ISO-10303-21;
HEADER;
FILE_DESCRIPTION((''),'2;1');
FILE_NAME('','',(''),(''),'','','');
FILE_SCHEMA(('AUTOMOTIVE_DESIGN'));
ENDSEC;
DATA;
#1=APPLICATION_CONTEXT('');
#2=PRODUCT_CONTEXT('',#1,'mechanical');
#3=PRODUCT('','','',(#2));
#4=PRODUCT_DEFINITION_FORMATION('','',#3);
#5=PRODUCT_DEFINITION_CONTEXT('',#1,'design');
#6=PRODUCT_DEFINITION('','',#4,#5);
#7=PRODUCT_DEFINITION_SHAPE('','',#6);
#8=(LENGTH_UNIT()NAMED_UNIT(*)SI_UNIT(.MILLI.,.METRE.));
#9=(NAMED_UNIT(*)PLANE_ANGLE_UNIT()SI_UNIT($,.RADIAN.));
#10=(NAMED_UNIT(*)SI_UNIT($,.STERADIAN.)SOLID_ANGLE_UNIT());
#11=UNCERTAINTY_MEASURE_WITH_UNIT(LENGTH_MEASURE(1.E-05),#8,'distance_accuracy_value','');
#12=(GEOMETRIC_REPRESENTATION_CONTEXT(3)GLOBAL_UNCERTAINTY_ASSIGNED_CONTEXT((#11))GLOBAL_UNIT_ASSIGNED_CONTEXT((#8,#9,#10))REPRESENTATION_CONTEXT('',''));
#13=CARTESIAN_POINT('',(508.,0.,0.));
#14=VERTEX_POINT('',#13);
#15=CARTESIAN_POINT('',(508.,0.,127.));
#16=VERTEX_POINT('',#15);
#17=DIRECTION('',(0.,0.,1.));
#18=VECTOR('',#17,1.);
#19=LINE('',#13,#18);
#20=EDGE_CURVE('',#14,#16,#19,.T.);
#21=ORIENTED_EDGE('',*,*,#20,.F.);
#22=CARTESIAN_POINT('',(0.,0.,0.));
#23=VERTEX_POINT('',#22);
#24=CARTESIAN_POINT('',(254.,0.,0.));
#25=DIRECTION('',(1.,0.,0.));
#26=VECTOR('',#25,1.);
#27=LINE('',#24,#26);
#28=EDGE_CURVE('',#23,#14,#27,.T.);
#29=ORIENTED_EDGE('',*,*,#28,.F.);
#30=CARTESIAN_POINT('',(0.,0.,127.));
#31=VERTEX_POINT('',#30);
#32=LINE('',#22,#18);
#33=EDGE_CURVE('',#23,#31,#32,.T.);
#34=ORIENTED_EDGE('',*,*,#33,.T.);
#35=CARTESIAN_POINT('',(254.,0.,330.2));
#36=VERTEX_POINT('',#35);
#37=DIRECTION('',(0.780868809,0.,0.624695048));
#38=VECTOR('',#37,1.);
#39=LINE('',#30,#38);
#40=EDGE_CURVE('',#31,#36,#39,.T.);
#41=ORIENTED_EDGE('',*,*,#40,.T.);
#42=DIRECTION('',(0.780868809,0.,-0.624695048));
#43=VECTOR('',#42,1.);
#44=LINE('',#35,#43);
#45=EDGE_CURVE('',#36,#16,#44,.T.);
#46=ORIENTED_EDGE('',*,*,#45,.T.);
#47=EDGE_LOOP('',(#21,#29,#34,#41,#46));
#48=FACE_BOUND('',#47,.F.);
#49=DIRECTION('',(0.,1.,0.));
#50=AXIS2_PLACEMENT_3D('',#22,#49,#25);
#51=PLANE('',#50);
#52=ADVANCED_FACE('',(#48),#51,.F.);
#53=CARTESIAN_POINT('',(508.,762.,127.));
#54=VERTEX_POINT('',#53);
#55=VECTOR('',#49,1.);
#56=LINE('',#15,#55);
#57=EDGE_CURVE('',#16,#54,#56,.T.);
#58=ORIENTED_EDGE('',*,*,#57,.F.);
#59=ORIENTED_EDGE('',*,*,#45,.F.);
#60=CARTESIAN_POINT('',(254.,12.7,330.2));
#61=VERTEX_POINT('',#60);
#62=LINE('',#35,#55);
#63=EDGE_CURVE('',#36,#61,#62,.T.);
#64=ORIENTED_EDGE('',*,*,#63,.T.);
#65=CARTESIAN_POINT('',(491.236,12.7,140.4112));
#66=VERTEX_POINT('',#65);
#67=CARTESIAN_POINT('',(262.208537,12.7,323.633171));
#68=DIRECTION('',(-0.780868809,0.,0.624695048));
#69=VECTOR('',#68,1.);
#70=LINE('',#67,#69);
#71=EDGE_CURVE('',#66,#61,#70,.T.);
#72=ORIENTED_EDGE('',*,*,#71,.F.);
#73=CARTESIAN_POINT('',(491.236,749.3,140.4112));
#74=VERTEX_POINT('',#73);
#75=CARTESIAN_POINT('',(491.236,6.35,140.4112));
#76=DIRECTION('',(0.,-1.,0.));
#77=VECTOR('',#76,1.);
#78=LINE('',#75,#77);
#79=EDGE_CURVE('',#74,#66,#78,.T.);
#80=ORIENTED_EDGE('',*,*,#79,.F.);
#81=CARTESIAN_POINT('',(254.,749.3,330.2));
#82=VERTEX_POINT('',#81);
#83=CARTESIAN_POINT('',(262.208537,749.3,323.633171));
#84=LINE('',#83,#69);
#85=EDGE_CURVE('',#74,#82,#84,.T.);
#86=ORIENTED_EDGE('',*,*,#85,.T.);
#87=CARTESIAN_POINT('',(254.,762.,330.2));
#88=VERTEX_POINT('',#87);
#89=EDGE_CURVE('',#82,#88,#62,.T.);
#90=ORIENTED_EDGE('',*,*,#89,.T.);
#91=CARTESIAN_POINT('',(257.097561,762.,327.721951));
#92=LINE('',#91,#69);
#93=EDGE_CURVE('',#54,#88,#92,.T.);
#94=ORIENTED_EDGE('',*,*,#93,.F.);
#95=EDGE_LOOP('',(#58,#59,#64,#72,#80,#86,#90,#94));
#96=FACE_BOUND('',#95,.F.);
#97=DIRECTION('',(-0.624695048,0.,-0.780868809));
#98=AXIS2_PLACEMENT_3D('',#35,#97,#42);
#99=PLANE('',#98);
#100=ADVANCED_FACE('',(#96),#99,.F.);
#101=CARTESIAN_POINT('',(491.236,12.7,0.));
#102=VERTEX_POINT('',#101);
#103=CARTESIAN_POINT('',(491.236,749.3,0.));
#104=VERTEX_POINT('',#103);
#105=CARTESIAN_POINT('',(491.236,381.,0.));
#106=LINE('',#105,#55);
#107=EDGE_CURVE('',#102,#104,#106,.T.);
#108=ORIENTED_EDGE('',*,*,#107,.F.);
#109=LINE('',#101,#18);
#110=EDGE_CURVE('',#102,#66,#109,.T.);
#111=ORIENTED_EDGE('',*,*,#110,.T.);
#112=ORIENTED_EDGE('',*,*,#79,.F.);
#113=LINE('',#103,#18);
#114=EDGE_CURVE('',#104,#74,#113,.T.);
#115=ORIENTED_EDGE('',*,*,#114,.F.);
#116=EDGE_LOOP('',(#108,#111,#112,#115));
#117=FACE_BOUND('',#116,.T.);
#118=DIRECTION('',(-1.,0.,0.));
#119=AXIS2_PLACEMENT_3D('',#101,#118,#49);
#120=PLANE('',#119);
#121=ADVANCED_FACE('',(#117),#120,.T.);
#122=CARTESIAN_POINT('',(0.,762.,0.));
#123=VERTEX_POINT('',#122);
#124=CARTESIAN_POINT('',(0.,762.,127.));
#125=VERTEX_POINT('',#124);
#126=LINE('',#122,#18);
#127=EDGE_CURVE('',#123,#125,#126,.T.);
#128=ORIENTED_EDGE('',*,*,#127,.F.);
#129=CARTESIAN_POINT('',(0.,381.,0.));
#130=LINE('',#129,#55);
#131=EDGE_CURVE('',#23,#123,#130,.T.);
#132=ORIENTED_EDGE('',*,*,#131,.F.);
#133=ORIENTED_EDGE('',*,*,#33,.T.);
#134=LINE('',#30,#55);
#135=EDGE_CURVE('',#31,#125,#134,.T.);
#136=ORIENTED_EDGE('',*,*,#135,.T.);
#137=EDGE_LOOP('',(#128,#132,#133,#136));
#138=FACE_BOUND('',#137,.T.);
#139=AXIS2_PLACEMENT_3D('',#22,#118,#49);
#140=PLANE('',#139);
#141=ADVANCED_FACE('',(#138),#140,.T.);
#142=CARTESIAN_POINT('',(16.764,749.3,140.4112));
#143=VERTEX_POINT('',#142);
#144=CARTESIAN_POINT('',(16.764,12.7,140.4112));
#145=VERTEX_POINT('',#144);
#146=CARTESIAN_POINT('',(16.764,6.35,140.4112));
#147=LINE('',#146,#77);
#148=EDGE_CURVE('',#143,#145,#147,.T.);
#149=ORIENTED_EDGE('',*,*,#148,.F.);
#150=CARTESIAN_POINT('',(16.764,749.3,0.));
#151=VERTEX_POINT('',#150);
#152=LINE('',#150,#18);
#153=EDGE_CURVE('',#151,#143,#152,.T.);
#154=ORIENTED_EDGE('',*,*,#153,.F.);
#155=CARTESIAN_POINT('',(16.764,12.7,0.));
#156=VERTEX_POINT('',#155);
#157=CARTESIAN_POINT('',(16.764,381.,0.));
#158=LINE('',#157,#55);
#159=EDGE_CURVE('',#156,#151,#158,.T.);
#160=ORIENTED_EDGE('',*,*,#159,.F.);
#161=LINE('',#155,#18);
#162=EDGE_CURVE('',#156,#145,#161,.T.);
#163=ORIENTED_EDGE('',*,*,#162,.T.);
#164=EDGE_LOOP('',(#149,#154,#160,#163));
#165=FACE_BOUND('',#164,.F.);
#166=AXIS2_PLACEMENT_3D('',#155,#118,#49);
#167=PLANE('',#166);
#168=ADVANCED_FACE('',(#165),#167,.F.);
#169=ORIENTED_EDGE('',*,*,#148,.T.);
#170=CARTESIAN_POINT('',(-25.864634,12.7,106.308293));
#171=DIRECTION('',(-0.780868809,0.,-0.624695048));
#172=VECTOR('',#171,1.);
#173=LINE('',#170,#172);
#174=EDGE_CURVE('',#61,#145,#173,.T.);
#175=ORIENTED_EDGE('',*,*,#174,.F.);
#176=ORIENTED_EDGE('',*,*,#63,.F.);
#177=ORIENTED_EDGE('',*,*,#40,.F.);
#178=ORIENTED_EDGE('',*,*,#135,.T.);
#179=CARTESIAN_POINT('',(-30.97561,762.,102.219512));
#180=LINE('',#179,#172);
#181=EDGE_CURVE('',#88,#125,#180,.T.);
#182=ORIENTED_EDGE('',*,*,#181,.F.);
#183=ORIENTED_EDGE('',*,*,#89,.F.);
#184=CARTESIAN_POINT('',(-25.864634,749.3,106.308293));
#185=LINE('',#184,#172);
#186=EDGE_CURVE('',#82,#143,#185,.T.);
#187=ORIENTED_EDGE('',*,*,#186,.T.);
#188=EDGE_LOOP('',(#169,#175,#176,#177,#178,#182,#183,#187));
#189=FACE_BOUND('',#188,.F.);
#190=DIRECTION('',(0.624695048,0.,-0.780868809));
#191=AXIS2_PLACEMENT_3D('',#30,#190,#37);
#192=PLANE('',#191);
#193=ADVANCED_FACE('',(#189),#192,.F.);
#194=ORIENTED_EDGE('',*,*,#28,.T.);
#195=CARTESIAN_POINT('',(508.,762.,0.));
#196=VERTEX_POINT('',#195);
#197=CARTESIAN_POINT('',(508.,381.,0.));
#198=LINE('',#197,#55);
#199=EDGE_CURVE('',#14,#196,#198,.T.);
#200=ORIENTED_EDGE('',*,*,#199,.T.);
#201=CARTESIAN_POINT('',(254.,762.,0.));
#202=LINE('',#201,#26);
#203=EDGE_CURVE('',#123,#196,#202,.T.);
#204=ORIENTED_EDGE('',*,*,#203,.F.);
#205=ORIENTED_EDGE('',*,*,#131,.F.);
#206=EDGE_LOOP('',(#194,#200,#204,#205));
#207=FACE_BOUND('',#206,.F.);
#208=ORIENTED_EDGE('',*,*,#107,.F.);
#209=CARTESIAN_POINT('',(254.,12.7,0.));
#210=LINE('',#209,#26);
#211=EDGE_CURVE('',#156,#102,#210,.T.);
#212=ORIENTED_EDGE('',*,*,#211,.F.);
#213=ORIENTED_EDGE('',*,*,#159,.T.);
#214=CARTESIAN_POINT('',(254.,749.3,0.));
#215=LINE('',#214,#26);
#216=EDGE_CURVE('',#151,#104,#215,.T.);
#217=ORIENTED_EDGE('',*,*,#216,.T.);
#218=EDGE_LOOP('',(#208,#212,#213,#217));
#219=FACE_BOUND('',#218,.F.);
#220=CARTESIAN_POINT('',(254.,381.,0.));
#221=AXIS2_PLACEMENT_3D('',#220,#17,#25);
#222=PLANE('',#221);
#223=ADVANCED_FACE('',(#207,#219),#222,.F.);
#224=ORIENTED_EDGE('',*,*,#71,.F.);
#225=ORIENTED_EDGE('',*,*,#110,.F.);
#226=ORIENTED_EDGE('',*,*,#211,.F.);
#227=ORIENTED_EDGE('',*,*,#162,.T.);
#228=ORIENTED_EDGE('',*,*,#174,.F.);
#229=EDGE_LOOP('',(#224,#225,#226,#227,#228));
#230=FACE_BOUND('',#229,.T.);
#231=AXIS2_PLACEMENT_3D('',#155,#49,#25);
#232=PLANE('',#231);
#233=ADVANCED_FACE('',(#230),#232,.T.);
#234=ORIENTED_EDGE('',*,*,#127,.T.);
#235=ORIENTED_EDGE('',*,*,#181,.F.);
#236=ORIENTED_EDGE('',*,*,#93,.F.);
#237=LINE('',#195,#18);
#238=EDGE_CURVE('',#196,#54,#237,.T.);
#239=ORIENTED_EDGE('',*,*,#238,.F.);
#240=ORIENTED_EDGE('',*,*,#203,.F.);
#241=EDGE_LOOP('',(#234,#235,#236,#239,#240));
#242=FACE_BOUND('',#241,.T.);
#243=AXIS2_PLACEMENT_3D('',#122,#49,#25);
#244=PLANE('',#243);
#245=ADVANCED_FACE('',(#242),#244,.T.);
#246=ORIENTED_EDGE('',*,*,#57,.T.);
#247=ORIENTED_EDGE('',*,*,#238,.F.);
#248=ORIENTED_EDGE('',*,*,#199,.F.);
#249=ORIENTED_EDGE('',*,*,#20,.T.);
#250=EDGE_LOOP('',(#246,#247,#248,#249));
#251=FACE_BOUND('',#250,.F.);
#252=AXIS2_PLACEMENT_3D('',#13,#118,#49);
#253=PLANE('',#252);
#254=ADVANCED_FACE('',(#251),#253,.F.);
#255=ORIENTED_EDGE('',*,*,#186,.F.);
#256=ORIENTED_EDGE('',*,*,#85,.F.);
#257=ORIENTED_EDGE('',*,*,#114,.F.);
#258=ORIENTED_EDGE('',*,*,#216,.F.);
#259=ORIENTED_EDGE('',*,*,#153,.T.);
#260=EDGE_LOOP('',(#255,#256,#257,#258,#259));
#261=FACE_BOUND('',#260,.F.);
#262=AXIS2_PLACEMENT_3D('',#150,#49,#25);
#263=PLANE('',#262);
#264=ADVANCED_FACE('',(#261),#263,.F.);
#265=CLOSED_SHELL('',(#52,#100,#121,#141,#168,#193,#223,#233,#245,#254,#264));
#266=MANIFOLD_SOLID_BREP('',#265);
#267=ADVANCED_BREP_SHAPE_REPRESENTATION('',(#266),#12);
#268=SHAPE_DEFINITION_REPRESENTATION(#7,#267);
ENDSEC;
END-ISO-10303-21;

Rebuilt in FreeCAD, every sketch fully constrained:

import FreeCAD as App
import Part
import Sketcher
from FreeCAD import Vector
Q = App.Units.Quantity

doc = App.newDocument("Part")
body = doc.addObject("PartDesign::Body", "Body")

sketch1 = body.newObject("Sketcher::SketchObject", "Sketch")
sketch1.AttachmentSupport = (doc.getObject("XY_Plane"), [""])
sketch1.MapMode = "FlatFace"
sketch1.addGeometry([
    Part.LineSegment(Vector(0, 762, 0), Vector(0, 0, 0)),
    Part.LineSegment(Vector(0, 0, 0), Vector(508, 0, 0)),
    Part.LineSegment(Vector(508, 0, 0), Vector(508, 762, 0)),
    Part.LineSegment(Vector(508, 762, 0), Vector(0, 762, 0)),
    Part.LineSegment(Vector(491, 13, 0), Vector(17, 13, 0)),
    Part.LineSegment(Vector(17, 13, 0), Vector(17, 749, 0)),
    Part.LineSegment(Vector(17, 749, 0), Vector(491, 749, 0)),
    Part.LineSegment(Vector(491, 749, 0), Vector(491, 13, 0)),
], False)
sketch1.addConstraint([
    Sketcher.Constraint("Coincident", 0, 2, 1, 1),
    Sketcher.Constraint("Coincident", 1, 2, 2, 1),
    Sketcher.Constraint("Coincident", 2, 2, 3, 1),
    Sketcher.Constraint("Coincident", 3, 2, 0, 1),
    Sketcher.Constraint("Coincident", 4, 2, 5, 1),
    Sketcher.Constraint("Coincident", 5, 2, 6, 1),
    Sketcher.Constraint("Coincident", 6, 2, 7, 1),
    Sketcher.Constraint("Coincident", 7, 2, 4, 1),
    Sketcher.Constraint("Vertical", 0),
    Sketcher.Constraint("Horizontal", 1),
    Sketcher.Constraint("Vertical", 2),
    Sketcher.Constraint("Horizontal", 3),
    Sketcher.Constraint("Horizontal", 4),
    Sketcher.Constraint("Vertical", 5),
    Sketcher.Constraint("Horizontal", 6),
    Sketcher.Constraint("Vertical", 7),
    Sketcher.Constraint("Coincident", 0, 2, -1, 1),
    Sketcher.Constraint("DistanceX", 1, 1, 1, 2, Q("20 in")),
    Sketcher.Constraint("DistanceY", 0, 2, 0, 1, Q("30 in")),
    Sketcher.Constraint("DistanceY", 5, 1, 5, 2, Q("29 in")),
    Sketcher.Constraint("DistanceX", 4, 2, 4, 1, Q("18.68 in")),
    Sketcher.Constraint("DistanceY", -1, 1, 4, 2, Q("0.5 in")),
    Sketcher.Constraint("DistanceX", -1, 1, 4, 2, Q("0.66 in")),
])
pad1 = body.newObject("PartDesign::Pad", "Pad")
pad1.Profile = sketch1
pad1.Length = Q("13 in")

sketch2 = body.newObject("Sketcher::SketchObject", "Sketch001")
sketch2.AttachmentSupport = (doc.getObject("XZ_Plane"), [""])
sketch2.MapMode = "FlatFace"
sketch2.addGeometry([
    Part.LineSegment(Vector(0, 330, 0), Vector(0, 127, 0)),
    Part.LineSegment(Vector(0, 127, 0), Vector(254, 330, 0)),
    Part.LineSegment(Vector(254, 330, 0), Vector(0, 330, 0)),
    Part.LineSegment(Vector(508, 330, 0), Vector(254, 330, 0)),
    Part.LineSegment(Vector(254, 330, 0), Vector(508, 127, 0)),
    Part.LineSegment(Vector(508, 127, 0), Vector(508, 330, 0)),
], False)
sketch2.addConstraint([
    Sketcher.Constraint("Coincident", 0, 2, 1, 1),
    Sketcher.Constraint("Coincident", 1, 2, 2, 1),
    Sketcher.Constraint("Coincident", 2, 2, 0, 1),
    Sketcher.Constraint("Coincident", 3, 2, 4, 1),
    Sketcher.Constraint("Coincident", 4, 2, 5, 1),
    Sketcher.Constraint("Coincident", 5, 2, 3, 1),
    Sketcher.Constraint("Vertical", 0),
    Sketcher.Constraint("Horizontal", 2),
    Sketcher.Constraint("Horizontal", 3),
    Sketcher.Constraint("Vertical", 5),
    Sketcher.Constraint("Coincident", 3, 2, 1, 2),
    Sketcher.Constraint("PointOnObject", 0, 2, -2),
    Sketcher.Constraint("Horizontal", 0, 2, 4, 2),
    Sketcher.Constraint("Equal", 2, 3),
    Sketcher.Constraint("DistanceX", 2, 2, 2, 1, Q("10 in")),
    Sketcher.Constraint("DistanceY", 0, 2, 0, 1, Q("8 in")),
    Sketcher.Constraint("DistanceY", -1, 1, 0, 2, Q("5 in")),
])
pocket1 = body.newObject("PartDesign::Pocket", "Pocket")
pocket1.Profile = sketch2
pocket1.Type = "ThroughAll"

doc.recompute()
